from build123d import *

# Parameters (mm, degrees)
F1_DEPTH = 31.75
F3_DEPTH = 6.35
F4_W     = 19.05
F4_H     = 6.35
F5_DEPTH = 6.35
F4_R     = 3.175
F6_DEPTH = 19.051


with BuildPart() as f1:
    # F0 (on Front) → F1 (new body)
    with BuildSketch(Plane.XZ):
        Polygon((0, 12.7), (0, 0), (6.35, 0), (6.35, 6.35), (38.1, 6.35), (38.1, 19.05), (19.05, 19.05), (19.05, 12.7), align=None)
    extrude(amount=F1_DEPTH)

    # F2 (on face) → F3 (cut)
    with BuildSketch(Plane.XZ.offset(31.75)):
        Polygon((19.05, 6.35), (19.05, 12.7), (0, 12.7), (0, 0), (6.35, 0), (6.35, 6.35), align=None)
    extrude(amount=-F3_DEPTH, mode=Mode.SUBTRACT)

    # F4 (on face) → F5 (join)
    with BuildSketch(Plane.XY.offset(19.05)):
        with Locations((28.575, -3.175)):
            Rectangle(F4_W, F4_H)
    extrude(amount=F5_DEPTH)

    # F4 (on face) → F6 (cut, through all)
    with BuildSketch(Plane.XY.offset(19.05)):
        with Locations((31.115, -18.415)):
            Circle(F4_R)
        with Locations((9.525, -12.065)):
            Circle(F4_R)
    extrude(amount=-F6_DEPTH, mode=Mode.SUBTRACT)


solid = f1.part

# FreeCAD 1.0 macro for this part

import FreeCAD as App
import Part
import Sketcher
Q = App.Units.Quantity

doc = App.newDocument("Part")
body = doc.addObject("PartDesign::Body", "Body")

# Sketch on XZ plane
sketch1 = body.newObject("Sketcher::SketchObject", "Sketch")
sketch1.AttachmentSupport = (doc.getObject("XZ_Plane"), [""])
sketch1.MapMode = "FlatFace"
sketch1.addGeometry(Part.LineSegment(App.Vector(0, 13, 0), App.Vector(0, 0, 0)), False)
sketch1.addGeometry(Part.LineSegment(App.Vector(0, 0, 0), App.Vector(6, 0, 0)), False)
sketch1.addGeometry(Part.LineSegment(App.Vector(6, 0, 0), App.Vector(6, 6, 0)), False)
sketch1.addGeometry(Part.LineSegment(App.Vector(6, 6, 0), App.Vector(38, 6, 0)), False)
sketch1.addGeometry(Part.LineSegment(App.Vector(38, 6, 0), App.Vector(38, 19, 0)), False)
sketch1.addGeometry(Part.LineSegment(App.Vector(38, 19, 0), App.Vector(19, 19, 0)), False)
sketch1.addGeometry(Part.LineSegment(App.Vector(19, 19, 0), App.Vector(19, 13, 0)), False)
sketch1.addGeometry(Part.LineSegment(App.Vector(19, 13, 0), App.Vector(0, 13, 0)), False)
sketch1.addConstraint(Sketcher.Constraint("Coincident", 0, 2, 1, 1))
sketch1.addConstraint(Sketcher.Constraint("Coincident", 1, 2, 2, 1))
sketch1.addConstraint(Sketcher.Constraint("Coincident", 2, 2, 3, 1))
sketch1.addConstraint(Sketcher.Constraint("Coincident", 3, 2, 4, 1))
sketch1.addConstraint(Sketcher.Constraint("Coincident", 4, 2, 5, 1))
sketch1.addConstraint(Sketcher.Constraint("Coincident", 5, 2, 6, 1))
sketch1.addConstraint(Sketcher.Constraint("Coincident", 6, 2, 7, 1))
sketch1.addConstraint(Sketcher.Constraint("Coincident", 7, 2, 0, 1))
sketch1.addConstraint(Sketcher.Constraint("Vertical", 0))
sketch1.addConstraint(Sketcher.Constraint("Horizontal", 1))
sketch1.addConstraint(Sketcher.Constraint("Vertical", 2))
sketch1.addConstraint(Sketcher.Constraint("Horizontal", 3))
sketch1.addConstraint(Sketcher.Constraint("Vertical", 4))
sketch1.addConstraint(Sketcher.Constraint("Horizontal", 5))
sketch1.addConstraint(Sketcher.Constraint("Vertical", 6))
sketch1.addConstraint(Sketcher.Constraint("Horizontal", 7))
sketch1.addConstraint(Sketcher.Constraint("Coincident", 0, 2, -1, 1))
sketch1.addConstraint(Sketcher.Constraint("Equal", 5, 7))
sketch1.addConstraint(Sketcher.Constraint("Equal", 1, 2))
sketch1.addConstraint(Sketcher.Constraint("Equal", 0, 4))
sketch1.addConstraint(Sketcher.Constraint("DistanceY", 0, 2, 0, 1, Q("0.5 in")))
sketch1.addConstraint(Sketcher.Constraint("DistanceX", 1, 1, 1, 2, Q("0.25 in")))
sketch1.addConstraint(Sketcher.Constraint("DistanceX", 3, 1, 3, 2, Q("1.25 in")))
pad1 = body.newObject("PartDesign::Pad", "Pad")
pad1.Profile = sketch1
pad1.Length = Q("1.25 in")

# Sketch on XZ plane
sketch2 = body.newObject("Sketcher::SketchObject", "Sketch001")
sketch2.AttachmentSupport = (doc.getObject("XZ_Plane"), [""])
sketch2.MapMode = "FlatFace"
sketch2.AttachmentOffset = App.Placement(App.Vector(0, 0, 1.25 * 25.4), App.Rotation())
sketch2.addGeometry(Part.LineSegment(App.Vector(19, 6, 0), App.Vector(19, 13, 0)), False)
sketch2.addGeometry(Part.LineSegment(App.Vector(19, 13, 0), App.Vector(0, 13, 0)), False)
sketch2.addGeometry(Part.LineSegment(App.Vector(0, 13, 0), App.Vector(0, 0, 0)), False)
sketch2.addGeometry(Part.LineSegment(App.Vector(0, 0, 0), App.Vector(6, 0, 0)), False)
sketch2.addGeometry(Part.LineSegment(App.Vector(6, 0, 0), App.Vector(6, 6, 0)), False)
sketch2.addGeometry(Part.LineSegment(App.Vector(6, 6, 0), App.Vector(19, 6, 0)), False)
sketch2.addConstraint(Sketcher.Constraint("Coincident", 0, 2, 1, 1))
sketch2.addConstraint(Sketcher.Constraint("Coincident", 1, 2, 2, 1))
sketch2.addConstraint(Sketcher.Constraint("Coincident", 2, 2, 3, 1))
sketch2.addConstraint(Sketcher.Constraint("Coincident", 3, 2, 4, 1))
sketch2.addConstraint(Sketcher.Constraint("Coincident", 4, 2, 5, 1))
sketch2.addConstraint(Sketcher.Constraint("Coincident", 5, 2, 0, 1))
sketch2.addConstraint(Sketcher.Constraint("Vertical", 0))
sketch2.addConstraint(Sketcher.Constraint("Horizontal", 1))
sketch2.addConstraint(Sketcher.Constraint("Vertical", 2))
sketch2.addConstraint(Sketcher.Constraint("Horizontal", 3))
sketch2.addConstraint(Sketcher.Constraint("Vertical", 4))
sketch2.addConstraint(Sketcher.Constraint("Horizontal", 5))
sketch2.addConstraint(Sketcher.Constraint("Coincident", 2, 2, -1, 1))
sketch2.addConstraint(Sketcher.Constraint("Equal", 3, 0))
sketch2.addConstraint(Sketcher.Constraint("Equal", 5, 2))
sketch2.addConstraint(Sketcher.Constraint("Equal", 0, 4))
sketch2.addConstraint(Sketcher.Constraint("DistanceX", 5, 1, 5, 2, Q("0.5 in")))
pocket1 = body.newObject("PartDesign::Pocket", "Pocket")
pocket1.Profile = sketch2
pocket1.Length = Q("0.25 in")

# Sketch on XY plane
sketch3 = body.newObject("Sketcher::SketchObject", "Sketch002")
sketch3.AttachmentSupport = (doc.getObject("XY_Plane"), [""])
sketch3.MapMode = "FlatFace"
sketch3.AttachmentOffset = App.Placement(App.Vector(0, 0, 0.75 * 25.4), App.Rotation())
sketch3.addGeometry(Part.LineSegment(App.Vector(19, 0, 0), App.Vector(19, -6, 0)), False)
sketch3.addGeometry(Part.LineSegment(App.Vector(19, -6, 0), App.Vector(38, -6, 0)), False)
sketch3.addGeometry(Part.LineSegment(App.Vector(38, -6, 0), App.Vector(38, 0, 0)), False)
sketch3.addGeometry(Part.LineSegment(App.Vector(38, 0, 0), App.Vector(19, 0, 0)), False)
sketch3.addConstraint(Sketcher.Constraint("Coincident", 0, 2, 1, 1))
sketch3.addConstraint(Sketcher.Constraint("Coincident", 1, 2, 2, 1))
sketch3.addConstraint(Sketcher.Constraint("Coincident", 2, 2, 3, 1))
sketch3.addConstraint(Sketcher.Constraint("Coincident", 3, 2, 0, 1))
sketch3.addConstraint(Sketcher.Constraint("Vertical", 0))
sketch3.addConstraint(Sketcher.Constraint("Horizontal", 1))
sketch3.addConstraint(Sketcher.Constraint("Vertical", 2))
sketch3.addConstraint(Sketcher.Constraint("Horizontal", 3))
sketch3.addConstraint(Sketcher.Constraint("PointOnObject", 2, 2, -1))
sketch3.addConstraint(Sketcher.Constraint("DistanceX", 1, 1, 1, 2, Q("0.75 in")))
sketch3.addConstraint(Sketcher.Constraint("DistanceY", 0, 2, 0, 1, Q("0.25 in")))
sketch3.addConstraint(Sketcher.Constraint("DistanceX", -1, 1, 1, 2, Q("1.5 in")))
pad2 = body.newObject("PartDesign::Pad", "Pad001")
pad2.Profile = sketch3
pad2.Length = Q("0.25 in")

# Sketch on XY plane
sketch4 = body.newObject("Sketcher::SketchObject", "Sketch003")
sketch4.AttachmentSupport = (doc.getObject("XY_Plane"), [""])
sketch4.MapMode = "FlatFace"
sketch4.AttachmentOffset = App.Placement(App.Vector(0, 0, 0.75 * 25.4), App.Rotation())
sketch4.addGeometry(Part.Circle(App.Vector(31.1, -18.4, 0), App.Vector(0, 0, 1), 3.2), False)
sketch4.addGeometry(Part.Circle(App.Vector(9.5, -12.1, 0), App.Vector(0, 0, 1), 3.2), False)
sketch4.addConstraint(Sketcher.Constraint("Equal", 0, 1))
sketch4.addConstraint(Sketcher.Constraint("Diameter", 0, Q("0.25 in")))
sketch4.addConstraint(Sketcher.Constraint("DistanceX", 1, 3, 0, 3, Q("0.85 in")))
sketch4.addConstraint(Sketcher.Constraint("DistanceY", 0, 3, 1, 3, Q("0.25 in")))
sketch4.addConstraint(Sketcher.Constraint("DistanceX", -1, 1, 0, 3, Q("1.225 in")))
sketch4.addConstraint(Sketcher.Constraint("DistanceY", 0, 3, -1, 1, Q("0.725 in")))
pocket2 = body.newObject("PartDesign::Pocket", "Pocket001")
pocket2.Profile = sketch4
pocket2.Type = "ThroughAll"

doc.recompute()
